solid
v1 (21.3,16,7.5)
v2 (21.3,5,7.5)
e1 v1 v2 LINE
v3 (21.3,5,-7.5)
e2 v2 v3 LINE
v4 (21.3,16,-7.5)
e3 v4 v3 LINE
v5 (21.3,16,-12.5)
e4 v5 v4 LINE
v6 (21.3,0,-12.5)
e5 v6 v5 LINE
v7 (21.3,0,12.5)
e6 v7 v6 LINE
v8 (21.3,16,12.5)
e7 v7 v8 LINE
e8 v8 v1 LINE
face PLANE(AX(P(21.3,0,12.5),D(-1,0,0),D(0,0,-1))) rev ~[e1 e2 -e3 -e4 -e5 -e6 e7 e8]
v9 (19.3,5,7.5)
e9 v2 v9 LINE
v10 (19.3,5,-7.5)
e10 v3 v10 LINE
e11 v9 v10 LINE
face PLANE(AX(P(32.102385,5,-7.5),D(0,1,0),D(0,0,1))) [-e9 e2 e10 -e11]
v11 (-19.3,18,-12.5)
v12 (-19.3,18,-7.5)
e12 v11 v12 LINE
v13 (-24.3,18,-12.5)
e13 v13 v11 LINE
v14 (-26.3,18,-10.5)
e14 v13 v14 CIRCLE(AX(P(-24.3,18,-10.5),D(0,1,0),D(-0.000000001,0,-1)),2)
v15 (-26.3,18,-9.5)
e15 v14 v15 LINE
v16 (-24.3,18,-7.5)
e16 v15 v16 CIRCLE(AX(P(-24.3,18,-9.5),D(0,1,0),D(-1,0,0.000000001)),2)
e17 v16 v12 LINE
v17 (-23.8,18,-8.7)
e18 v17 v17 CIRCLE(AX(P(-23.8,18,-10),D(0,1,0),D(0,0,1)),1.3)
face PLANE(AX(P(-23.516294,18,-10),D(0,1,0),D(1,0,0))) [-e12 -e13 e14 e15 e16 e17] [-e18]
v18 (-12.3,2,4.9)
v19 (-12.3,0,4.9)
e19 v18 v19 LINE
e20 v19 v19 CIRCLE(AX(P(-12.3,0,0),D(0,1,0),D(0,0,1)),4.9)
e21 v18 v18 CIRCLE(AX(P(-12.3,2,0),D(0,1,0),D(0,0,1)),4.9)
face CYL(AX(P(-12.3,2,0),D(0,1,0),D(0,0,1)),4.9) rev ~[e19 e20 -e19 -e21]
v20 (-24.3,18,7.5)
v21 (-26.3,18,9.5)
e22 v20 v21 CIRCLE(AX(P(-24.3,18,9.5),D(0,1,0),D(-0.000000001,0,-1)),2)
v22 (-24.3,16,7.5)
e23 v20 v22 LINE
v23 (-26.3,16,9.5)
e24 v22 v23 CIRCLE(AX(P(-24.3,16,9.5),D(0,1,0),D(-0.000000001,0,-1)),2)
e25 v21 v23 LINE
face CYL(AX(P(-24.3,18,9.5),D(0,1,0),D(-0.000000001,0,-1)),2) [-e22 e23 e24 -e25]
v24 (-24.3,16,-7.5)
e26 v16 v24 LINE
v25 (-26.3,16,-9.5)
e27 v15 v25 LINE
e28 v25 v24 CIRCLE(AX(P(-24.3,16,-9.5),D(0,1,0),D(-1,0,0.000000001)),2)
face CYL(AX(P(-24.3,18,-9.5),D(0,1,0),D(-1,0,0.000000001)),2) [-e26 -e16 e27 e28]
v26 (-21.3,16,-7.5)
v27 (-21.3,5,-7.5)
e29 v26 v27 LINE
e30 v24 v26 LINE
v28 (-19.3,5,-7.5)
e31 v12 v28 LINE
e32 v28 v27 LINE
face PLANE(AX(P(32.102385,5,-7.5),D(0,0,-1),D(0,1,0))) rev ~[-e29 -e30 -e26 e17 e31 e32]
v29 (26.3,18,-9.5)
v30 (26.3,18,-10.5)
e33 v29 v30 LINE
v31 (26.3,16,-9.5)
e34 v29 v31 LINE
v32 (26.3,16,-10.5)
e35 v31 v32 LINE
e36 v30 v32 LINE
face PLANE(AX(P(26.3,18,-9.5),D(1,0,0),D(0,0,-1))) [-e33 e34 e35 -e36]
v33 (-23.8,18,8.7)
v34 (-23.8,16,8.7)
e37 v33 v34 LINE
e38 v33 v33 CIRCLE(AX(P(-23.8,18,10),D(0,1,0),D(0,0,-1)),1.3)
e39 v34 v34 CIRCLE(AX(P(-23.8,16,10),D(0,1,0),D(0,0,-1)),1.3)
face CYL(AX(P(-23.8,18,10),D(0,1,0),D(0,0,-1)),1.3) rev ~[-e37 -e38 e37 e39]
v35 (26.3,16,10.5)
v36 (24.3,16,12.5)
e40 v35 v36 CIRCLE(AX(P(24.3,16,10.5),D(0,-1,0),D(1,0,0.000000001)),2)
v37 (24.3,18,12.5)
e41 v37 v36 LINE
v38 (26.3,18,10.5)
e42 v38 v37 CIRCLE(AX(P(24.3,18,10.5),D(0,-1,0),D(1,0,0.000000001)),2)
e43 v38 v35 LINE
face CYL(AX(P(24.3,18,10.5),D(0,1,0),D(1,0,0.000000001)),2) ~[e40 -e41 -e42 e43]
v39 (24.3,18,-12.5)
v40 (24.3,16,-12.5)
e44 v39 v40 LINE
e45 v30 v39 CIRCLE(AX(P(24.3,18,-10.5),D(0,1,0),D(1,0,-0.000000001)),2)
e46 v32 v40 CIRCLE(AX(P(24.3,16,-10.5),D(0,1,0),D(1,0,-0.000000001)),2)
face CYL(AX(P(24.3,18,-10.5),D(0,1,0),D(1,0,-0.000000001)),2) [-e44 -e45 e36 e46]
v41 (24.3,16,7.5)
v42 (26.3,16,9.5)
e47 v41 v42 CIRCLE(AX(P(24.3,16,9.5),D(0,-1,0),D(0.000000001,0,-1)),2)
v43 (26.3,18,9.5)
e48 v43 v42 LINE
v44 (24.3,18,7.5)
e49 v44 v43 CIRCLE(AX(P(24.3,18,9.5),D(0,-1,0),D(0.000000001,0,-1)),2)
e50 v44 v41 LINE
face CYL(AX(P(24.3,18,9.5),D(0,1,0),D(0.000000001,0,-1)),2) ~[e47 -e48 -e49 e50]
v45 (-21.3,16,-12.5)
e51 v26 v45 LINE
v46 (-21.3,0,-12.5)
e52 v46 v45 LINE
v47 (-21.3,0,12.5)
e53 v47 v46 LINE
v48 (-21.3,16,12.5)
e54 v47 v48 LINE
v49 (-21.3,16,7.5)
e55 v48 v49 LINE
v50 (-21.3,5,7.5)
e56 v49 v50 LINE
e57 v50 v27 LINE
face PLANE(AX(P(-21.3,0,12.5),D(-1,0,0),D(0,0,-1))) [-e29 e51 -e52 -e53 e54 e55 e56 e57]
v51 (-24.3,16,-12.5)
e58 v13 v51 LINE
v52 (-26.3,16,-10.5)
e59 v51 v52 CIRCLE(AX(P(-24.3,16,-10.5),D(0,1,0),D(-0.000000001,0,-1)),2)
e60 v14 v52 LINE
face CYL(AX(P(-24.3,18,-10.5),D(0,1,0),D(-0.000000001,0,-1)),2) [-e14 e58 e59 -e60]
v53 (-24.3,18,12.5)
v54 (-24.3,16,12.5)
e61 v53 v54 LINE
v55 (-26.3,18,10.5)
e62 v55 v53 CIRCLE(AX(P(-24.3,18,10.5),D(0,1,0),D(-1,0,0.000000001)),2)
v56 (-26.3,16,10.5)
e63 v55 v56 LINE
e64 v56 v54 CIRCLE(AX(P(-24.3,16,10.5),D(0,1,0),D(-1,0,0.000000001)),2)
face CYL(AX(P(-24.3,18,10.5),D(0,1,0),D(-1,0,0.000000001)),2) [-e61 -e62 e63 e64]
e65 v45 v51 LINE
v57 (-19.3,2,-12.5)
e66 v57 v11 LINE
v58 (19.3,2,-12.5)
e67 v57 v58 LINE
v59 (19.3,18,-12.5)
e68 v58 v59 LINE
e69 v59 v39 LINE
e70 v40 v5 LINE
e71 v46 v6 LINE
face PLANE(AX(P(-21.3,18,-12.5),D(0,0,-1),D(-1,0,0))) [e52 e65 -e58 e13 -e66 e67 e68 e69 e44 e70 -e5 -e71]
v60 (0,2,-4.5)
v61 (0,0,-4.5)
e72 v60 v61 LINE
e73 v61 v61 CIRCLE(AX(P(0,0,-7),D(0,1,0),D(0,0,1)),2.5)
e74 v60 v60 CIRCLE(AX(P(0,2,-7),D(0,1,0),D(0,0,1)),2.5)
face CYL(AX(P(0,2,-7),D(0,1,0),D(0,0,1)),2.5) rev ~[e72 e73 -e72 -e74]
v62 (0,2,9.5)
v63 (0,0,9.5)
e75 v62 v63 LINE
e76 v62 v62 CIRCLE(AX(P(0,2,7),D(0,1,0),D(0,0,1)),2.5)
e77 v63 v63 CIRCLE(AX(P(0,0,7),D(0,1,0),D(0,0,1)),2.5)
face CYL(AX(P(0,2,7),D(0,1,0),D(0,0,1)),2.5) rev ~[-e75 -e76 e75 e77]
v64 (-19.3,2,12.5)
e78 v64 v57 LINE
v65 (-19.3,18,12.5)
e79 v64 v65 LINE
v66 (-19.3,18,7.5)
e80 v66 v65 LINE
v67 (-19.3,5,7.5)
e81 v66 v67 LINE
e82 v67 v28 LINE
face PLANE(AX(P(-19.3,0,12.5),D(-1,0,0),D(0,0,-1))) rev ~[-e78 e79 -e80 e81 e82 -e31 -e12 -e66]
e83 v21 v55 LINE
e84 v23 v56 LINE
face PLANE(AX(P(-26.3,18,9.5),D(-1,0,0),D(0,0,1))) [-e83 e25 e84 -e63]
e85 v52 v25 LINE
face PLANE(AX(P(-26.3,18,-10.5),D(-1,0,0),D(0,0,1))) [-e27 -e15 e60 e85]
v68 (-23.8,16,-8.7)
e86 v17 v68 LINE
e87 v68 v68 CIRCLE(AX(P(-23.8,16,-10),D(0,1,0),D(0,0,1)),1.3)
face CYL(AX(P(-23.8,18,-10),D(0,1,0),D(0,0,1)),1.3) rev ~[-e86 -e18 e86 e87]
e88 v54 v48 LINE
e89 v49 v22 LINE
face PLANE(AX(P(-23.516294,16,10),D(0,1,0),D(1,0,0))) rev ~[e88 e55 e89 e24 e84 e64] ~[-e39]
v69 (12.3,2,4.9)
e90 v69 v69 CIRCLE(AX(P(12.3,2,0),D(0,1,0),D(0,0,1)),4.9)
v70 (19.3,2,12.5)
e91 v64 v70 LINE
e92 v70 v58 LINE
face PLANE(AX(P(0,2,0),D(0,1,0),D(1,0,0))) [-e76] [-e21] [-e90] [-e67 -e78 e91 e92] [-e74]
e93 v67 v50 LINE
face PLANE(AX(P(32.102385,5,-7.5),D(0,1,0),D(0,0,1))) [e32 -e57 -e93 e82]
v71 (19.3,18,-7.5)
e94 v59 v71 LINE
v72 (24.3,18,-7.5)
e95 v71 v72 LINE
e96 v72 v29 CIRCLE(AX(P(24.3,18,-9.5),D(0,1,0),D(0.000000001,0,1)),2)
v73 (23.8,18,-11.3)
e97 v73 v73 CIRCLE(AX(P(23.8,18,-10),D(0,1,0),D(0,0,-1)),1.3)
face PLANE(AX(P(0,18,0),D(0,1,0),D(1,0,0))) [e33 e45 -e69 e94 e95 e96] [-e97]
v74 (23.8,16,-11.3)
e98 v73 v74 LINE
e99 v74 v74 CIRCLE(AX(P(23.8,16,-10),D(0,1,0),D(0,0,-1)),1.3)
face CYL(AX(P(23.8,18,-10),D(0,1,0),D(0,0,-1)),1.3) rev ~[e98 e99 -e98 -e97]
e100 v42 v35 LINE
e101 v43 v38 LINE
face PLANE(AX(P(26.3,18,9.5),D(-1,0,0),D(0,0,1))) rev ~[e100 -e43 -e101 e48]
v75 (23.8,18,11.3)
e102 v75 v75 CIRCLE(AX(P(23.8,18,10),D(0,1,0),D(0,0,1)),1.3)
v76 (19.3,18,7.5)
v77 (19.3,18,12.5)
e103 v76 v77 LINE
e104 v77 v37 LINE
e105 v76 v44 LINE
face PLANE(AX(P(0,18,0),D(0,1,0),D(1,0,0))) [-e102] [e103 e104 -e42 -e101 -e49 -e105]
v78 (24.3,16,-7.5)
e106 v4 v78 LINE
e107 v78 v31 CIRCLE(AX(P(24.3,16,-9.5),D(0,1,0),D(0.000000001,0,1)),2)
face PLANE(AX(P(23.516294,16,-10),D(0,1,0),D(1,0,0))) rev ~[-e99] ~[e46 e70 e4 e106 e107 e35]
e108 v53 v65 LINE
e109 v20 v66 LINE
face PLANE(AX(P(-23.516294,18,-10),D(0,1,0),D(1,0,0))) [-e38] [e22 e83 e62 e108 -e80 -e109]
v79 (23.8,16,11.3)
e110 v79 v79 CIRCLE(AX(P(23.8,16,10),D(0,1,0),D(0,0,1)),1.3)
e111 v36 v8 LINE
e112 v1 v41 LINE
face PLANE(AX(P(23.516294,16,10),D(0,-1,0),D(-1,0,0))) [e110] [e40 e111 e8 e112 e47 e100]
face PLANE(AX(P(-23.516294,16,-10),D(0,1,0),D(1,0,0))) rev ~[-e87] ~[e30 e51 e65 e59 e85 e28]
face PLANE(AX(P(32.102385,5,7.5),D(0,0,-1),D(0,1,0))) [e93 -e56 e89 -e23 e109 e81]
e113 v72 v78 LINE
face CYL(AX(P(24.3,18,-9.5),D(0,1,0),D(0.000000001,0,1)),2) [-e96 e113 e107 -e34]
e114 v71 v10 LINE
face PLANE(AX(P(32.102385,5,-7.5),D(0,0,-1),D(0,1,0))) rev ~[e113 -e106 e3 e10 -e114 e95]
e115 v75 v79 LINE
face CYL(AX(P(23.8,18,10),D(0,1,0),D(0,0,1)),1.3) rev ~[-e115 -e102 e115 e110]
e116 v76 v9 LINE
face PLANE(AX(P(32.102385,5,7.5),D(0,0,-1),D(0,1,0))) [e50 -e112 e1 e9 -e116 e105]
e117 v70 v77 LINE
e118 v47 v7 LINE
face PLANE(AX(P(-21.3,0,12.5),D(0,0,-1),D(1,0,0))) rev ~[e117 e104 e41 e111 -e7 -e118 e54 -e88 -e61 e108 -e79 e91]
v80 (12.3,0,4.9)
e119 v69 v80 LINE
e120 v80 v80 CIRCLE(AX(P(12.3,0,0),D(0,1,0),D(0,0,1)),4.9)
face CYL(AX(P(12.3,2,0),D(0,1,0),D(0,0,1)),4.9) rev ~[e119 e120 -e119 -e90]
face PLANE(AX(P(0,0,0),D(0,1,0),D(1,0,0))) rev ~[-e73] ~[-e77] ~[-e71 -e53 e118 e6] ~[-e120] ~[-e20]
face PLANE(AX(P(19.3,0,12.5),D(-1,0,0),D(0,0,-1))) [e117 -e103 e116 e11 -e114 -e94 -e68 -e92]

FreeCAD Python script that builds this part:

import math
import FreeCAD as App
import Part
import Sketcher

V = App.Vector


def faces_at(feature, points):
    """Names of the faces that lie closest to the given points."""
    faces = feature.Shape.Faces
    near = lambda p: min(range(len(faces)), key=lambda i: faces[i].distToShape(Part.Vertex(*p))[0])
    return sorted({f"Face{near(p) + 1}" for p in points})


def add_polygon(sketch, points):
    """Adds a closed chain of lines whose ends are joined by coincident constraints."""
    first, n = sketch.GeometryCount, len(points)
    for a, b in zip(points, points[1:] + points[:1]):
        sketch.addGeometry(Part.LineSegment(App.Vector(*a, 0), App.Vector(*b, 0)), False)
    for i in range(n):
        sketch.addConstraint(Sketcher.Constraint("Coincident", first + i, 2, first + (i + 1) % n, 1))

doc = App.newDocument("Part")
body = doc.addObject("PartDesign::Body", "Body")

# Sketch on XZ plane
sketch1 = body.newObject("Sketcher::SketchObject", "Sketch")
sketch1.AttachmentSupport = (doc.getObject("XZ_Plane"), [""])
sketch1.MapMode = "FlatFace"
add_polygon(sketch1, [(-21, -12), (-21, 12), (21, 12), (21, -12)])  # lines 0-3
sketch1.addConstraint(Sketcher.Constraint("Vertical", 0))
sketch1.addConstraint(Sketcher.Constraint("Horizontal", 1))
sketch1.addConstraint(Sketcher.Constraint("Vertical", 2))
sketch1.addConstraint(Sketcher.Constraint("Horizontal", 3))
sketch1.addConstraint(Sketcher.Constraint("Symmetric", 0, 2, 2, 2, -1, 1))
sketch1.addConstraint(Sketcher.Constraint("DistanceY", 0, 1, 0, 2, 25.0))
sketch1.addConstraint(Sketcher.Constraint("DistanceX", 1, 1, 1, 2, 42.6))
pad1 = body.newObject("PartDesign::Pad", "Pad")
pad1.Profile = sketch1
pad1.Length = 18
pad1.Reversed = True
doc.recompute()

thickness = body.newObject("PartDesign::Thickness", "Thickness")
thickness.Base = (pad1, faces_at(pad1, [(0, 18, 0), (0, 9, -12.5), (0, 9, 12.5)]))
thickness.Value = 2
thickness.Reversed = True
thickness.Join = "Intersection"

# Sketch on XZ plane
sketch2 = body.newObject("Sketcher::SketchObject", "Sketch001")
sketch2.AttachmentSupport = (doc.getObject("XZ_Plane"), [""])
sketch2.MapMode = "FlatFace"
sketch2.AttachmentOffset = App.Placement(V(0, 0, -18), App.Rotation())
sketch2.addGeometry(Part.LineSegment(V(-21.3, -12.5, 0), V(-24.3, -12.5, 0)), False)
sketch2.addGeometry(Part.ArcOfCircle(Part.Circle(V(-24.3, -10.5, 0), V(0, 0, 1), 2), math.radians(-180), math.radians(-90)), False)
sketch2.addGeometry(Part.LineSegment(V(-26.3, -10.5, 0), V(-26.3, -9.5, 0)), False)
sketch2.addGeometry(Part.ArcOfCircle(Part.Circle(V(-24.3, -9.5, 0), V(0, 0, 1), 2), math.radians(90), math.radians(180)), False)
sketch2.addGeometry(Part.LineSegment(V(-24.3, -7.5, 0), V(-21.3, -7.5, 0)), False)
sketch2.addGeometry(Part.LineSegment(V(-21.3, -7.5, 0), V(-21.3, -12.5, 0)), False)
sketch2.addGeometry(Part.Circle(V(-23.8, -10, 0), V(0, 0, 1), 1.3), False)
sketch2.addGeometry(Part.LineSegment(V(-21.3, 7.5, 0), V(-24.3, 7.5, 0)), False)
sketch2.addGeometry(Part.ArcOfCircle(Part.Circle(V(-24.3, 9.5, 0), V(0, 0, 1), 2), math.radians(-180), math.radians(-90)), False)
sketch2.addGeometry(Part.LineSegment(V(-26.3, 9.5, 0), V(-26.3, 10.5, 0)), False)
sketch2.addGeometry(Part.ArcOfCircle(Part.Circle(V(-24.3, 10.5, 0), V(0, 0, 1), 2), math.radians(90), math.radians(180)), False)
sketch2.addGeometry(Part.LineSegment(V(-24.3, 12.5, 0), V(-21.3, 12.5, 0)), False)
sketch2.addGeometry(Part.LineSegment(V(-21.3, 12.5, 0), V(-21.3, 7.5, 0)), False)
sketch2.addGeometry(Part.Circle(V(-23.8, 10, 0), V(0, 0, 1), 1.3), False)
sketch2.addGeometry(Part.LineSegment(V(21.3, 7.5, 0), V(21.3, 12.5, 0)), False)
sketch2.addGeometry(Part.LineSegment(V(21.3, 12.5, 0), V(24.3, 12.5, 0)), False)
sketch2.addGeometry(Part.ArcOfCircle(Part.Circle(V(24.3, 10.5, 0), V(0, 0, 1), 2), math.radians(0), math.radians(90)), False)
sketch2.addGeometry(Part.LineSegment(V(26.3, 10.5, 0), V(26.3, 9.5, 0)), False)
sketch2.addGeometry(Part.ArcOfCircle(Part.Circle(V(24.3, 9.5, 0), V(0, 0, 1), 2), math.radians(-90), math.radians(0)), False)
sketch2.addGeometry(Part.LineSegment(V(24.3, 7.5, 0), V(21.3, 7.5, 0)), False)
sketch2.addGeometry(Part.Circle(V(23.8, 10, 0), V(0, 0, 1), 1.3), False)
sketch2.addGeometry(Part.LineSegment(V(21.3, -7.5, 0), V(24.3, -7.5, 0)), False)
sketch2.addGeometry(Part.ArcOfCircle(Part.Circle(V(24.3, -9.5, 0), V(0, 0, 1), 2), math.radians(0), math.radians(90)), False)
sketch2.addGeometry(Part.LineSegment(V(26.3, -9.5, 0), V(26.3, -10.5, 0)), False)
sketch2.addGeometry(Part.ArcOfCircle(Part.Circle(V(24.3, -10.5, 0), V(0, 0, 1), 2), math.radians(-90), math.radians(0)), False)
sketch2.addGeometry(Part.LineSegment(V(24.3, -12.5, 0), V(21.3, -12.5, 0)), False)
sketch2.addGeometry(Part.LineSegment(V(21.3, -12.5, 0), V(21.3, -7.5, 0)), False)
sketch2.addGeometry(Part.Circle(V(23.8, -10, 0), V(0, 0, 1), 1.3), False)
sketch2.addConstraint(Sketcher.Constraint("Tangent", 0, 2, 1, 2))
sketch2.addConstraint(Sketcher.Constraint("Tangent", 1, 1, 2, 1))
sketch2.addConstraint(Sketcher.Constraint("Tangent", 2, 2, 3, 2))
sketch2.addConstraint(Sketcher.Constraint("Tangent", 3, 1, 4, 1))
sketch2.addConstraint(Sketcher.Constraint("Coincident", 4, 2, 5, 1))
sketch2.addConstraint(Sketcher.Constraint("Coincident", 5, 2, 0, 1))
sketch2.addConstraint(Sketcher.Constraint("Tangent", 7, 2, 8, 2))
sketch2.addConstraint(Sketcher.Constraint("Tangent", 8, 1, 9, 1))
sketch2.addConstraint(Sketcher.Constraint("Tangent", 9, 2, 10, 2))
sketch2.addConstraint(Sketcher.Constraint("Tangent", 10, 1, 11, 1))
sketch2.addConstraint(Sketcher.Constraint("Coincident", 11, 2, 12, 1))
sketch2.addConstraint(Sketcher.Constraint("Coincident", 12, 2, 7, 1))
sketch2.addConstraint(Sketcher.Constraint("Coincident", 14, 2, 15, 1))
sketch2.addConstraint(Sketcher.Constraint("Tangent", 15, 2, 16, 2))
sketch2.addConstraint(Sketcher.Constraint("Tangent", 16, 1, 17, 1))
sketch2.addConstraint(Sketcher.Constraint("Tangent", 17, 2, 18, 2))
sketch2.addConstraint(Sketcher.Constraint("Tangent", 18, 1, 19, 1))
sketch2.addConstraint(Sketcher.Constraint("Coincident", 19, 2, 14, 1))
sketch2.addConstraint(Sketcher.Constraint("Tangent", 21, 2, 22, 2))
sketch2.addConstraint(Sketcher.Constraint("Tangent", 22, 1, 23, 1))
sketch2.addConstraint(Sketcher.Constraint("Tangent", 23, 2, 24, 2))
sketch2.addConstraint(Sketcher.Constraint("Tangent", 24, 1, 25, 1))
sketch2.addConstraint(Sketcher.Constraint("Coincident", 25, 2, 26, 1))
sketch2.addConstraint(Sketcher.Constraint("Coincident", 26, 2, 21, 1))
sketch2.addConstraint(Sketcher.Constraint("Horizontal", 0))
sketch2.addConstraint(Sketcher.Constraint("Vertical", 2))
sketch2.addConstraint(Sketcher.Constraint("Horizontal", 4))
sketch2.addConstraint(Sketcher.Constraint("Vertical", 5))
sketch2.addConstraint(Sketcher.Constraint("Horizontal", 7))
sketch2.addConstraint(Sketcher.Constraint("Vertical", 9))
sketch2.addConstraint(Sketcher.Constraint("Horizontal", 11))
sketch2.addConstraint(Sketcher.Constraint("Vertical", 12))
sketch2.addConstraint(Sketcher.Constraint("Vertical", 14))
sketch2.addConstraint(Sketcher.Constraint("Horizontal", 15))
sketch2.addConstraint(Sketcher.Constraint("Vertical", 17))
sketch2.addConstraint(Sketcher.Constraint("Horizontal", 19))
sketch2.addConstraint(Sketcher.Constraint("Horizontal", 21))
sketch2.addConstraint(Sketcher.Constraint("Vertical", 23))
sketch2.addConstraint(Sketcher.Constraint("Horizontal", 25))
sketch2.addConstraint(Sketcher.Constraint("Vertical", 26))
sketch2.addConstraint(Sketcher.Constraint("Equal", 1, 3))
sketch2.addConstraint(Sketcher.Constraint("Equal", 3, 8))
sketch2.addConstraint(Sketcher.Constraint("Equal", 8, 10))
sketch2.addConstraint(Sketcher.Constraint("Equal", 6, 13))
sketch2.addConstraint(Sketcher.Constraint("Equal", 10, 16))
sketch2.addConstraint(Sketcher.Constraint("Equal", 16, 18))
sketch2.addConstraint(Sketcher.Constraint("Equal", 13, 20))
sketch2.addConstraint(Sketcher.Constraint("Equal", 18, 22))
sketch2.addConstraint(Sketcher.Constraint("Equal", 22, 24))
sketch2.addConstraint(Sketcher.Constraint("Equal", 20, 27))
sketch2.addConstraint(Sketcher.Constraint("Symmetric", 1, 3, 16, 3, -1, 1))
sketch2.addConstraint(Sketcher.Constraint("Symmetric", 6, 3, 20, 3, -1, 1))
sketch2.addConstraint(Sketcher.Constraint("Symmetric", 8, 3, 22, 3, -1, 1))
sketch2.addConstraint(Sketcher.Constraint("Symmetric", 13, 3, 27, 3, -1, 1))
sketch2.addConstraint(Sketcher.Constraint("Symmetric", 4, 2, 19, 2, -1, 1))
sketch2.addConstraint(Sketcher.Constraint("Symmetric", 11, 2, 25, 2, -1, 1))
sketch2.addConstraint(Sketcher.Constraint("Symmetric", 10, 3, 16, 3, -2))
sketch2.addConstraint(Sketcher.Constraint("Symmetric", 13, 3, 20, 3, -2))
sketch2.addConstraint(Sketcher.Constraint("Symmetric", 12, 2, 19, 2, -2))
sketch2.addConstraint(Sketcher.Constraint("Radius", 1, 2.0))
sketch2.addConstraint(Sketcher.Constraint("Diameter", 6, 2.6))
sketch2.addConstraint(Sketcher.Constraint("DistanceX", 0, 2, 0, 1, 3.0))
sketch2.addConstraint(Sketcher.Constraint("DistanceY", 2, 1, 2, 2, 1.0))
sketch2.addConstraint(Sketcher.Constraint("DistanceY", 6, 3, -1, 1, 10.0))
sketch2.addConstraint(Sketcher.Constraint("DistanceY", 3, 3, 8, 3, 19.0))
sketch2.addConstraint(Sketcher.Constraint("DistanceX", 1, 3, -1, 1, 24.3))
sketch2.addConstraint(Sketcher.Constraint("DistanceX", 6, 3, -1, 1, 23.8))
pad2 = body.newObject("PartDesign::Pad", "Pad001")
pad2.Profile = sketch2
pad2.Length = 2

# Sketch on XZ plane
sketch3 = body.newObject("Sketcher::SketchObject", "Sketch002")
sketch3.AttachmentSupport = (doc.getObject("XZ_Plane"), [""])
sketch3.MapMode = "FlatFace"
sketch3.AttachmentOffset = App.Placement(V(0, 0, -2), App.Rotation())
sketch3.addGeometry(Part.Circle(V(-12.3, 0, 0), V(0, 0, 1), 4.9), False)
sketch3.addGeometry(Part.Circle(V(12.3, 0, 0), V(0, 0, 1), 4.9), False)
sketch3.addGeometry(Part.Circle(V(0, -7, 0), V(0, 0, 1), 2.5), False)
sketch3.addGeometry(Part.Circle(V(0, 7, 0), V(0, 0, 1), 2.5), False)
sketch3.addConstraint(Sketcher.Constraint("Equal", 0, 1))
sketch3.addConstraint(Sketcher.Constraint("Equal", 2, 3))
sketch3.addConstraint(Sketcher.Constraint("Symmetric", 0, 3, 1, 3, -1, 1))
sketch3.addConstraint(Sketcher.Constraint("Symmetric", 2, 3, 3, 3, -1, 1))
sketch3.addConstraint(Sketcher.Constraint("PointOnObject", 0, 3, -1))
sketch3.addConstraint(Sketcher.Constraint("PointOnObject", 2, 3, -2))
sketch3.addConstraint(Sketcher.Constraint("Diameter", 2, 5.0))
sketch3.addConstraint(Sketcher.Constraint("Diameter", 0, 9.8))
sketch3.addConstraint(Sketcher.Constraint("DistanceY", 2, 3, -1, 1, 7.0))
sketch3.addConstraint(Sketcher.Constraint("DistanceX", 0, 3, -1, 1, 12.3))
pocket1 = body.newObject("PartDesign::Pocket", "Pocket")
pocket1.Profile = sketch3
pocket1.Length = 2
pocket1.Reversed = True

# Sketch on YZ plane
sketch4 = body.newObject("Sketcher::SketchObject", "Sketch003")
sketch4.AttachmentSupport = (doc.getObject("YZ_Plane"), [""])
sketch4.MapMode = "FlatFace"
sketch4.AttachmentOffset = App.Placement(V(0, 0, -21.3), App.Rotation())
add_polygon(sketch4, [(18, -8), (5, -8), (5, 8), (18, 8)])  # lines 0-3
sketch4.addConstraint(Sketcher.Constraint("Horizontal", 0))
sketch4.addConstraint(Sketcher.Constraint("Vertical", 1))
sketch4.addConstraint(Sketcher.Constraint("Horizontal", 2))
sketch4.addConstraint(Sketcher.Constraint("Vertical", 3))
sketch4.addConstraint(Sketcher.Constraint("DistanceX", 0, 2, 0, 1, 13.0))
sketch4.addConstraint(Sketcher.Constraint("DistanceY", 1, 1, 1, 2, 15.0))
sketch4.addConstraint(Sketcher.Constraint("DistanceX", -1, 1, 0, 2, 5.0))
sketch4.addConstraint(Sketcher.Constraint("DistanceY", 0, 2, -1, 1, 7.5))
pocket2 = body.newObject("PartDesign::Pocket", "Pocket001")
pocket2.Profile = sketch4
pocket2.Type = "ThroughAll"
pocket2.Midplane = True

doc.recompute()
